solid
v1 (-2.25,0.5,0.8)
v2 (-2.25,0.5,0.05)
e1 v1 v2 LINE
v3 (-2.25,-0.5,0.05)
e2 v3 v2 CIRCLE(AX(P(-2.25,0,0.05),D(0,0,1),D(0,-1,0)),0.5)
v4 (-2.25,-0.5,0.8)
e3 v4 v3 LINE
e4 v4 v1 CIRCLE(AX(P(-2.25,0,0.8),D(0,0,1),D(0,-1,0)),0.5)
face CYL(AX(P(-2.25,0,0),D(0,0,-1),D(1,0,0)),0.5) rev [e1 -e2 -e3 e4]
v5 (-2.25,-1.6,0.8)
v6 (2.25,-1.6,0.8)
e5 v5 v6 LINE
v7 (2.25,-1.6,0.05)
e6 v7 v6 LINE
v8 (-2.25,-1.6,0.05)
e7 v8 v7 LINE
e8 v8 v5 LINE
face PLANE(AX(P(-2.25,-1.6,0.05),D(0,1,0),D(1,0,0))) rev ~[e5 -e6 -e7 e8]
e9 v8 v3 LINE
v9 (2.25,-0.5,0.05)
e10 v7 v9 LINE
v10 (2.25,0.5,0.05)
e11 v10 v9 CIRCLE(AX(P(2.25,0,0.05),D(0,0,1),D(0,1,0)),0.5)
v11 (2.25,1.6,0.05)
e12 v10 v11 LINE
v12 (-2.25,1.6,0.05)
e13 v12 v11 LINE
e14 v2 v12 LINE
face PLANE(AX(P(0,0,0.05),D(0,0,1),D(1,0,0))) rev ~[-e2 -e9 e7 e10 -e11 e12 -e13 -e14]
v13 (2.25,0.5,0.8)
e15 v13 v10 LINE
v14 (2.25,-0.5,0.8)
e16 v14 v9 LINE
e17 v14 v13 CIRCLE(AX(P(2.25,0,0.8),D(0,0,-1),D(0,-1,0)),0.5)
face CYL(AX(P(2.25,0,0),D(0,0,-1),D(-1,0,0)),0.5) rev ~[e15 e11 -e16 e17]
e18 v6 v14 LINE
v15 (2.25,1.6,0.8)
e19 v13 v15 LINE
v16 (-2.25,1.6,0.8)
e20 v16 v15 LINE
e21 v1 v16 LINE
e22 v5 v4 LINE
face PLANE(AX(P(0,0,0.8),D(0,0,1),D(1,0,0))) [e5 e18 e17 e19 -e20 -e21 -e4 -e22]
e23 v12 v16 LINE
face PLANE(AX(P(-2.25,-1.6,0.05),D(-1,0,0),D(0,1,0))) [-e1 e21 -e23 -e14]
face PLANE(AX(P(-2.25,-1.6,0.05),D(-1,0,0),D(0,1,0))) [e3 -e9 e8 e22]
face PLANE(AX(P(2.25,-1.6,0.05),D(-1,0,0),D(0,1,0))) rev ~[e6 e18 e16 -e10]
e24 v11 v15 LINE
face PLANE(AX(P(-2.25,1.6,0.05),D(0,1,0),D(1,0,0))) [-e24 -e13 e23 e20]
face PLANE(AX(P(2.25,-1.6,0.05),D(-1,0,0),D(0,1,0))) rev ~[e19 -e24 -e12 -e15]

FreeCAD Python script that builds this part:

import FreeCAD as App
import Part
import Sketcher
from FreeCAD import Vector
Q = App.Units.Quantity


def add_polygon(sketch, points):
    """Adds a closed chain of lines whose ends are joined by coincident constraints."""
    first, n = sketch.GeometryCount, len(points)
    for a, b in zip(points, points[1:] + points[:1]):
        sketch.addGeometry(Part.LineSegment(App.Vector(*a, 0), App.Vector(*b, 0)), False)
    for i in range(n):
        sketch.addConstraint(Sketcher.Constraint("Coincident", first + i, 2, first + (i + 1) % n, 1))

doc = App.newDocument("Part")
body = doc.addObject("PartDesign::Body", "Body")

# Sketch on XY plane
sketch1 = doc.addObject("Sketcher::SketchObject", "Sketch")
body.addObject(sketch1)
sketch1.AttachmentSupport = (doc.XY_Plane, [""])
sketch1.MapMode = "FlatFace"
sketch1.AttachmentOffset = App.Placement(Vector(0, 0, 0.05), App.Rotation())
add_polygon(sketch1, [(-2.25, 1.6), (-2.25, -1.6), (2.25, -1.6), (2.25, 1.6)])  # lines 0-3
sketch1.addConstraint(Sketcher.Constraint("Vertical", 0))
sketch1.addConstraint(Sketcher.Constraint("Horizontal", 1))
sketch1.addConstraint(Sketcher.Constraint("Vertical", 2))
sketch1.addConstraint(Sketcher.Constraint("Horizontal", 3))
sketch1.addConstraint(Sketcher.Constraint("Symmetric", 0, 2, 2, 2, -1, 1))
sketch1.addConstraint(Sketcher.Constraint("DistanceX", 1, 1, 1, 2, Q("4.5 mm")))
sketch1.addConstraint(Sketcher.Constraint("DistanceY", 0, 2, 0, 1, Q("3.2 mm")))
pad1 = doc.addObject("PartDesign::Pad", "Pad")
body.addObject(pad1)
pad1.Profile = sketch1
pad1.Length = 0.75

# Sketch on XY plane
sketch2 = doc.addObject("Sketcher::SketchObject", "Sketch001")
body.addObject(sketch2)
sketch2.AttachmentSupport = (doc.XY_Plane, [""])
sketch2.MapMode = "FlatFace"
sketch2.addGeometry(Part.Circle(Vector(-2.25, 0, 0), Vector(0, 0, 1), 0.5), False)
sketch2.addConstraint(Sketcher.Constraint("PointOnObject", 0, 3, -1))
sketch2.addConstraint(Sketcher.Constraint("Diameter", 0, Q("1 mm")))
sketch2.addConstraint(Sketcher.Constraint("DistanceX", 0, 3, -1, 1, Q("2.25 mm")))
pocket1 = doc.addObject("PartDesign::Pocket", "Pocket")
body.addObject(pocket1)
pocket1.Profile = sketch2
pocket1.Length = 1
pocket1.Reversed = True
doc.recompute()

mirrored = doc.addObject("PartDesign::Mirrored", "Mirrored")
body.addObject(mirrored)
mirrored.Originals = [pocket1]
mirrored.MirrorPlane = (doc.YZ_Plane, [""])
body.Tip = mirrored

doc.recompute()
